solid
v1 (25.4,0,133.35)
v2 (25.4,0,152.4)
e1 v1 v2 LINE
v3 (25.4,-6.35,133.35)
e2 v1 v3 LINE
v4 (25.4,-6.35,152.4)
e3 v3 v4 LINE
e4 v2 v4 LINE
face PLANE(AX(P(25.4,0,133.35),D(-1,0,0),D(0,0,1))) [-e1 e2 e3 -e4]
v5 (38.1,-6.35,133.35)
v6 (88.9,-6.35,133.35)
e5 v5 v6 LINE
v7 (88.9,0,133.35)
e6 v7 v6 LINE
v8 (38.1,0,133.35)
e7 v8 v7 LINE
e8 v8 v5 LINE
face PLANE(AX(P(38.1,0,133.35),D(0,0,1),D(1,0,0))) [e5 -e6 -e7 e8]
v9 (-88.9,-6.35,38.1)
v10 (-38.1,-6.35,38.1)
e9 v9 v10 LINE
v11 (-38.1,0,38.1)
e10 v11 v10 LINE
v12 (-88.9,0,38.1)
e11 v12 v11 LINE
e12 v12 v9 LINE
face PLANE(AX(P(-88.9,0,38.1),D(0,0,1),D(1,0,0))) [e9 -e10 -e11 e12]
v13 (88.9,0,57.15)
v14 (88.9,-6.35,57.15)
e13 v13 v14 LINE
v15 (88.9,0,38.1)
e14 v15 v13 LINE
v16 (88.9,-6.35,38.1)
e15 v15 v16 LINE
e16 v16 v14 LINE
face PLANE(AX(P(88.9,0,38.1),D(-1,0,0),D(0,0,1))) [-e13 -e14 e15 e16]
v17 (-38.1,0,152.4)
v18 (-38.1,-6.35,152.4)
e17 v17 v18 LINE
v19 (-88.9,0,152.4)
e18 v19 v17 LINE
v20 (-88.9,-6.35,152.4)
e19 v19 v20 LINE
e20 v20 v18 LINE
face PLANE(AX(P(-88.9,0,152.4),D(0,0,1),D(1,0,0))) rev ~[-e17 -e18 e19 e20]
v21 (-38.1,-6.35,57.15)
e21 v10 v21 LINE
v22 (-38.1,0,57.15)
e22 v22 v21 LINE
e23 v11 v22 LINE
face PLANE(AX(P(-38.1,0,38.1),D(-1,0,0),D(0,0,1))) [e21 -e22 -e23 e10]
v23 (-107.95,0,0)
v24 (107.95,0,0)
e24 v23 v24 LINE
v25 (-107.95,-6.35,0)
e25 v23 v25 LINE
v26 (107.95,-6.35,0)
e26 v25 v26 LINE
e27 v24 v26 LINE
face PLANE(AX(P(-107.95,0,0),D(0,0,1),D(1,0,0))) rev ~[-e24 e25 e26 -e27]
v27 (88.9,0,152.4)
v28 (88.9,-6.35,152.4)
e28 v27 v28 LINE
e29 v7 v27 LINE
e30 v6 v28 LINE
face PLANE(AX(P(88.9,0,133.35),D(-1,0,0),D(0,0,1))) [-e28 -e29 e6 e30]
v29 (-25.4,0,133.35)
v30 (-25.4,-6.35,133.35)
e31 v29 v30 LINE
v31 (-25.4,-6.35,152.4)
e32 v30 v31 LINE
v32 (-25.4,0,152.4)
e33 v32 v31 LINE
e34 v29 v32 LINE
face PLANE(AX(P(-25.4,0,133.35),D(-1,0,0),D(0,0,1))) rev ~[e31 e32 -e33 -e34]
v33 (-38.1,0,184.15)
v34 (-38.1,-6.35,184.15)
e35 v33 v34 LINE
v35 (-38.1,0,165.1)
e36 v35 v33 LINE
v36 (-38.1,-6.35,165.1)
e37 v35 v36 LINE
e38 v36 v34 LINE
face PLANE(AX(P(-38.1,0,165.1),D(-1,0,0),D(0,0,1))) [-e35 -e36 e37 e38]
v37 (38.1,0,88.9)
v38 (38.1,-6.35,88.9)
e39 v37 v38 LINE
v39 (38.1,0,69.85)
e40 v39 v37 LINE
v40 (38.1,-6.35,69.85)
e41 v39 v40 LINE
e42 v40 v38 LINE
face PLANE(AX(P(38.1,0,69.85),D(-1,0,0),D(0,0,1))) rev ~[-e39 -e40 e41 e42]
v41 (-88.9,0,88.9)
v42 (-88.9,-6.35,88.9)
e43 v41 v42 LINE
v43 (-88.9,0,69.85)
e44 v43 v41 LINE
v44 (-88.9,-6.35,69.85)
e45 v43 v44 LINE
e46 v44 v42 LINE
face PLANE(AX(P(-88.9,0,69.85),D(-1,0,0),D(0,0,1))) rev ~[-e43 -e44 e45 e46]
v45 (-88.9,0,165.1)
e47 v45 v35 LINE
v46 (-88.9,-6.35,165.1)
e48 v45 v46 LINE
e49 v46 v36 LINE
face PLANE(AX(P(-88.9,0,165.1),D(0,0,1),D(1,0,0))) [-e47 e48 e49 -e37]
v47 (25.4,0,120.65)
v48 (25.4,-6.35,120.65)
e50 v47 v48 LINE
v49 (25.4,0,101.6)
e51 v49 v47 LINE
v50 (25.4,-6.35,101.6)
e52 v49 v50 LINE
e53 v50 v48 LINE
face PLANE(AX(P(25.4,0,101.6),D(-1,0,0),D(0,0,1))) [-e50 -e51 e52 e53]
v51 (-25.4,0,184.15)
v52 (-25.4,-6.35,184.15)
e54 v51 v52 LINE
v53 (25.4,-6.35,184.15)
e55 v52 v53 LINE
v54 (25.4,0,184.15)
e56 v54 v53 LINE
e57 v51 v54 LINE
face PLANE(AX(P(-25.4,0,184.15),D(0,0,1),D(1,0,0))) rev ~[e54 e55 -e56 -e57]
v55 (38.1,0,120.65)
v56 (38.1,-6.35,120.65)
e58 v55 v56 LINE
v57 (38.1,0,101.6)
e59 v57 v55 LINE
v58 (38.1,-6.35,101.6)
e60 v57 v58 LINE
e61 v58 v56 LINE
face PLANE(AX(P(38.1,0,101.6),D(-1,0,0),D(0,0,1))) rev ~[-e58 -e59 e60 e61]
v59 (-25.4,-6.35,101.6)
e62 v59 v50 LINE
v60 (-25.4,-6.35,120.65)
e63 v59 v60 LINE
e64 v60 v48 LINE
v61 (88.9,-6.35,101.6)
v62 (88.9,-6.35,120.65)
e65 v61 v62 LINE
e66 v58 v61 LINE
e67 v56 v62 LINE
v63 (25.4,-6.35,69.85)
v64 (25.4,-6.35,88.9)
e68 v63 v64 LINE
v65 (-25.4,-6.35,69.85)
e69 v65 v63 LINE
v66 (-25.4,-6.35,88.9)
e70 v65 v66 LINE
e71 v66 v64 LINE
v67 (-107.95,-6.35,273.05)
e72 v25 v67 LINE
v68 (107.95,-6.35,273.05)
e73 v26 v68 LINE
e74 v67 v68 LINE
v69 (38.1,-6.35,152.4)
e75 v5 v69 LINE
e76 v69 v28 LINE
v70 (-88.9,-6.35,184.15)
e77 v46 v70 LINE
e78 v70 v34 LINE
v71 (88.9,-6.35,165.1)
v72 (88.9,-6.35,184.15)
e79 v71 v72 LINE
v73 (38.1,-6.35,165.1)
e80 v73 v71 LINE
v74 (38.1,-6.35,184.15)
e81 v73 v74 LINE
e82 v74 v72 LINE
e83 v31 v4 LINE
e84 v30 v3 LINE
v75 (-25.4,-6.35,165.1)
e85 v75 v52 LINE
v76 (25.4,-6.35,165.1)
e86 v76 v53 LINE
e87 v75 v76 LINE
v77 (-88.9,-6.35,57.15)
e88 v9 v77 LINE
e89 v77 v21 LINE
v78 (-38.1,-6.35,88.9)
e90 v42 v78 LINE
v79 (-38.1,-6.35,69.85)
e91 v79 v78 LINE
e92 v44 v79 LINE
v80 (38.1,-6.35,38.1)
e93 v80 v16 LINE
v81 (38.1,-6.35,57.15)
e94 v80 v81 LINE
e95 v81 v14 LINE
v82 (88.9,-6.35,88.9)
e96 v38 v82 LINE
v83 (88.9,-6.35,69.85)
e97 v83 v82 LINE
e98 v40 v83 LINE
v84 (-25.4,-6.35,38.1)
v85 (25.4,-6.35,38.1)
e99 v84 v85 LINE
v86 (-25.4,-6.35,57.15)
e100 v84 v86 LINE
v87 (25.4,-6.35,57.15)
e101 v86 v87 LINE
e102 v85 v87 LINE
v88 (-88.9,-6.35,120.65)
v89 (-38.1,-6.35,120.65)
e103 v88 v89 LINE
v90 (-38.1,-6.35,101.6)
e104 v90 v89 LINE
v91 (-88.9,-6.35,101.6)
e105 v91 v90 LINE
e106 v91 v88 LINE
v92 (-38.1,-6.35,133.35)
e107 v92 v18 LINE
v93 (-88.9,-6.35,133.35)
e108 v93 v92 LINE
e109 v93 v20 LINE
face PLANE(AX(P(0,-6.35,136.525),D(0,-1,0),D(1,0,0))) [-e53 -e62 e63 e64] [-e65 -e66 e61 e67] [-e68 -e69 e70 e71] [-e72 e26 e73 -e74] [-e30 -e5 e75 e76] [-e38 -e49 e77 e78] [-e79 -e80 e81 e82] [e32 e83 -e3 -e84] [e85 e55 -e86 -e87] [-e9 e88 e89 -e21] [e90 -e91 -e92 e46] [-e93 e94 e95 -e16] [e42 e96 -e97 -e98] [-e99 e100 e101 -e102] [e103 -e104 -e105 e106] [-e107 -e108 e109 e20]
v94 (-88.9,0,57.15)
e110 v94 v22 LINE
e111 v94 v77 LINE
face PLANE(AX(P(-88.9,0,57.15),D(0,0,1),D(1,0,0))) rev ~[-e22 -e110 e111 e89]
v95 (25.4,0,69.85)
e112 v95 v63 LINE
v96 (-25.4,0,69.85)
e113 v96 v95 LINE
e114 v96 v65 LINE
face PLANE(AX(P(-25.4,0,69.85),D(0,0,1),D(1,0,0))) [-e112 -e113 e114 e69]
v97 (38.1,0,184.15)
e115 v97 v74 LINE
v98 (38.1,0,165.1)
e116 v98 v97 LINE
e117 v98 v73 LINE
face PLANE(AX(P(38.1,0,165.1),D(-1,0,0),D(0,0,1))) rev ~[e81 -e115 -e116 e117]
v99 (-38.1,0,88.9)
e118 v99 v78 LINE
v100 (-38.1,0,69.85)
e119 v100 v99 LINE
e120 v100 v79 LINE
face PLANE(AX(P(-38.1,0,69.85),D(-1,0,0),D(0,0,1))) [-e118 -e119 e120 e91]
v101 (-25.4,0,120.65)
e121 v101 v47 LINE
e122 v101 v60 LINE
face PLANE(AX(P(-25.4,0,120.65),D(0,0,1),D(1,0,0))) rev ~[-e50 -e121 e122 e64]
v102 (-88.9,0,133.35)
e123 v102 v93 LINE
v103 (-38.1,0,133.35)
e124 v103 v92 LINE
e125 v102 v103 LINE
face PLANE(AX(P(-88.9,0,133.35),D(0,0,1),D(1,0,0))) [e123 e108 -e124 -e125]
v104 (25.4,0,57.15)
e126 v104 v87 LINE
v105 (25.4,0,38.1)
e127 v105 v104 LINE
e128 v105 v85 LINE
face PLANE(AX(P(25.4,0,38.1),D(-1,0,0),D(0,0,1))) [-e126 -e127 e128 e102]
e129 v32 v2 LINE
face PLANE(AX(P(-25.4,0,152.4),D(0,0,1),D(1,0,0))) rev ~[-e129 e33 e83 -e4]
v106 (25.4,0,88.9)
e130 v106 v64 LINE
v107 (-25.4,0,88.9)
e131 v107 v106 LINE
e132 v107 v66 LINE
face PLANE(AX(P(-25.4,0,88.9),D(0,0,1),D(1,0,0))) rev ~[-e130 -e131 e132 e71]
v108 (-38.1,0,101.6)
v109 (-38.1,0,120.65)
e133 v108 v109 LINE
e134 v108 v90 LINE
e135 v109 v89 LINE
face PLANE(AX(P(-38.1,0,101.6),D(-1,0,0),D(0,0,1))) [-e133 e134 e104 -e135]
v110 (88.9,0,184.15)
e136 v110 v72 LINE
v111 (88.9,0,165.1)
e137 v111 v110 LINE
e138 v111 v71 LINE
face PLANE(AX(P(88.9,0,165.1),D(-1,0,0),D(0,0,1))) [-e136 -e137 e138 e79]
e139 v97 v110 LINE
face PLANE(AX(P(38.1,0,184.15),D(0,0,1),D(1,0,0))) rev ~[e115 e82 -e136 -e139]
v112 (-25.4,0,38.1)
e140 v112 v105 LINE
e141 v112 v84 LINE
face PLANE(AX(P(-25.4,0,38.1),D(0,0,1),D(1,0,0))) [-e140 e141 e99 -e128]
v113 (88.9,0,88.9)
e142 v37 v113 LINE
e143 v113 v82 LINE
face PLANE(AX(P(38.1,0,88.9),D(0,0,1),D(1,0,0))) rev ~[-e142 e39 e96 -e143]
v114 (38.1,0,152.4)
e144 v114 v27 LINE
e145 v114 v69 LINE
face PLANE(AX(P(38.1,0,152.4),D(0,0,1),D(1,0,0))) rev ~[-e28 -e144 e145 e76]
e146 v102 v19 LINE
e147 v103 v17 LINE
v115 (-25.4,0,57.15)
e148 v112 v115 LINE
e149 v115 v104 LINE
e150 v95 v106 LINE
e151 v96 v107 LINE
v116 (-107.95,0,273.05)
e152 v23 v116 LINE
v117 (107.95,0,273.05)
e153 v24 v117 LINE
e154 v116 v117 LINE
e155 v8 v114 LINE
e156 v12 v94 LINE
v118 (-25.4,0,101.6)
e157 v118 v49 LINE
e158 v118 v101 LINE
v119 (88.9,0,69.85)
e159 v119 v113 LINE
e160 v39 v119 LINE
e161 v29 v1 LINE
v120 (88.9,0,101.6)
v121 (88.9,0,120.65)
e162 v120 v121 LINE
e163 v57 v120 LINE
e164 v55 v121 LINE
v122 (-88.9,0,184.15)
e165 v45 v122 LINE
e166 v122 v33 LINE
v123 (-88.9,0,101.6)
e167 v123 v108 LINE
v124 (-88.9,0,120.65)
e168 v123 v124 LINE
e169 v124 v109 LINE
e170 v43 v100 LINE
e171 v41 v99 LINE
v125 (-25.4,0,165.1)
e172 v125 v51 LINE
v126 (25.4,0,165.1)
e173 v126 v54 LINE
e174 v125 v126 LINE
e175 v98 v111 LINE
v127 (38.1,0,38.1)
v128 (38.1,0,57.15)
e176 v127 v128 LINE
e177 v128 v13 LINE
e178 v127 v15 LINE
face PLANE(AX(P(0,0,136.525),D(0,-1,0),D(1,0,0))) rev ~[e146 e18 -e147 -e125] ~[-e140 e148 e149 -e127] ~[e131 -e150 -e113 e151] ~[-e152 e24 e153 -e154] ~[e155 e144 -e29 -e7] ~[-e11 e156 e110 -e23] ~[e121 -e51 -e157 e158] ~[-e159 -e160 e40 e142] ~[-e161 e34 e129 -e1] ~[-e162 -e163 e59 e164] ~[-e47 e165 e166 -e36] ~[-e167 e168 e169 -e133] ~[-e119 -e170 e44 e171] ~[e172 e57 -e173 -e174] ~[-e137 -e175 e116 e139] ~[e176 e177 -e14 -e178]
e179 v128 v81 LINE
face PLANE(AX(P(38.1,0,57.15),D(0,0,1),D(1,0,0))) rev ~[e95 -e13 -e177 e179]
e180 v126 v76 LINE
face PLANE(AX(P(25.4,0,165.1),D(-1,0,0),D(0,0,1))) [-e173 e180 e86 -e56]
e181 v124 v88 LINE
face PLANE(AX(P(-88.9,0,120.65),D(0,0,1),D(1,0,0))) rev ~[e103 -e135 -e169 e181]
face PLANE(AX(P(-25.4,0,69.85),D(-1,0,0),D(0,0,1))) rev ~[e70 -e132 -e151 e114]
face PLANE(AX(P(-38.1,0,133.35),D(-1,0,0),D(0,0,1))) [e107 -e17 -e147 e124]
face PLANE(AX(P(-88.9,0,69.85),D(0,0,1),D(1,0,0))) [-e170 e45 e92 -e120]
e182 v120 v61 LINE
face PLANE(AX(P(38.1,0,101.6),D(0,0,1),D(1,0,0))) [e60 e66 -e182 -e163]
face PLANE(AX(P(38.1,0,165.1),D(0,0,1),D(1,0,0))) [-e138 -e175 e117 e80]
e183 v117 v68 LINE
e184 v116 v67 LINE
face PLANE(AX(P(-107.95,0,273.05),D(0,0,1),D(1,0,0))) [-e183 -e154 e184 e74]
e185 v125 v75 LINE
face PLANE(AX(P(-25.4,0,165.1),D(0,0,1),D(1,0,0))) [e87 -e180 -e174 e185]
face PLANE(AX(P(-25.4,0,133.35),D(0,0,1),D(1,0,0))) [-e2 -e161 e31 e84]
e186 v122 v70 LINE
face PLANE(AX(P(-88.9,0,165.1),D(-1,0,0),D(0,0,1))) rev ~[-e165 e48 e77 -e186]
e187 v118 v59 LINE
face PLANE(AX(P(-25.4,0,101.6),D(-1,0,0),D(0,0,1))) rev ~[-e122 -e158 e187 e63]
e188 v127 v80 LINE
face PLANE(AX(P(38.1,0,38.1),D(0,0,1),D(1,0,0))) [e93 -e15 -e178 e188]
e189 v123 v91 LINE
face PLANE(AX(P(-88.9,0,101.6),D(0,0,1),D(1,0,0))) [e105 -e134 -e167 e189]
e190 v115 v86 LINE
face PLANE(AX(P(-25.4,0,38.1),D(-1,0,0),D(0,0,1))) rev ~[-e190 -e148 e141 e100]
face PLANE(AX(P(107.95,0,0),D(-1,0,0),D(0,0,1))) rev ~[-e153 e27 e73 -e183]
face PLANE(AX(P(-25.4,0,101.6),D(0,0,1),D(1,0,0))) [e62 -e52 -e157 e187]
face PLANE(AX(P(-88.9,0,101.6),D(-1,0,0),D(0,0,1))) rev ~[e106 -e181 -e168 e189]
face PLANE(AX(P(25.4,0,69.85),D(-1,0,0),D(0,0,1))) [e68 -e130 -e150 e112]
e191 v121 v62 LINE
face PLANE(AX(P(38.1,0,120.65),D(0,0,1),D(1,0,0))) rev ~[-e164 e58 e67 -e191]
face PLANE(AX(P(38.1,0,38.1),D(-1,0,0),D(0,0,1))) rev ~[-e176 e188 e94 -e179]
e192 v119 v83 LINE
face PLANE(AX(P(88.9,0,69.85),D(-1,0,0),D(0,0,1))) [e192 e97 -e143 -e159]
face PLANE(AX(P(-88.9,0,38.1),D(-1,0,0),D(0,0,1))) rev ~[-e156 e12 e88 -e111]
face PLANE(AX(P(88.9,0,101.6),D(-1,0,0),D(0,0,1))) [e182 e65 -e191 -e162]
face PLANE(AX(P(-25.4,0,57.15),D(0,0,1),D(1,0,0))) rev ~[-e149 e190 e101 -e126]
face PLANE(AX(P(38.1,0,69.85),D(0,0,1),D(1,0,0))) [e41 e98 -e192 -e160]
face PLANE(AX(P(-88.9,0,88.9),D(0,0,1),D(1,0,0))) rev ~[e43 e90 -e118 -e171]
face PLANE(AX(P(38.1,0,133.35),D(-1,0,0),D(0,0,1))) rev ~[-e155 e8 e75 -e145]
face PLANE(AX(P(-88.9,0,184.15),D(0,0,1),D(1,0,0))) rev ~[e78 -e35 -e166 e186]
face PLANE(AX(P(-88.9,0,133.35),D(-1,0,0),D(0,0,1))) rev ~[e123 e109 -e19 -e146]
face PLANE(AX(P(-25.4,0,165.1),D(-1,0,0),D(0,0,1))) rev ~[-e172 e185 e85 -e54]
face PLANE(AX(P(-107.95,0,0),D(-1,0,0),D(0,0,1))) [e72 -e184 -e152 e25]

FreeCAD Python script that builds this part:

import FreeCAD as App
import Part
import Sketcher
Q = App.Units.Quantity


def add_polygon(sketch, points):
    """Adds a closed chain of lines whose ends are joined by coincident constraints."""
    first, n = sketch.GeometryCount, len(points)
    for a, b in zip(points, points[1:] + points[:1]):
        sketch.addGeometry(Part.LineSegment(App.Vector(*a, 0), App.Vector(*b, 0)), False)
    for i in range(n):
        sketch.addConstraint(Sketcher.Constraint("Coincident", first + i, 2, first + (i + 1) % n, 1))

doc = App.newDocument("Part")
body = doc.addObject("PartDesign::Body", "Body")

# Sketch on XZ plane
sketch1 = doc.addObject("Sketcher::SketchObject", "Sketch")
body.addObject(sketch1)
sketch1.AttachmentSupport = (doc.XZ_Plane, [""])
sketch1.MapMode = "FlatFace"
add_polygon(sketch1, [(-107.95, 273.05), (-107.95, 0), (107.95, 0), (107.95, 273.05)])  # lines 0-3
add_polygon(sketch1, [(-38.1, 38.1), (-88.9, 38.1), (-88.9, 57.15), (-38.1, 57.15)])  # lines 4-7
add_polygon(sketch1, [(-38.1, 69.85), (-88.9, 69.85), (-88.9, 88.9), (-38.1, 88.9)])  # lines 8-11
add_polygon(sketch1, [(25.4, 38.1), (-25.4, 38.1), (-25.4, 57.15), (25.4, 57.15)])  # lines 12-15
add_polygon(sketch1, [(88.9, 38.1), (38.1, 38.1), (38.1, 57.15), (88.9, 57.15)])  # lines 16-19
add_polygon(sketch1, [(25.4, 69.85), (-25.4, 69.85), (-25.4, 88.9), (25.4, 88.9)])  # lines 20-23
add_polygon(sketch1, [(88.9, 69.85), (38.1, 69.85), (38.1, 88.9), (88.9, 88.9)])  # lines 24-27
add_polygon(sketch1, [(-38.1, 101.6), (-88.9, 101.6), (-88.9, 120.65), (-38.1, 120.65)])  # lines 28-31
add_polygon(sketch1, [(-38.1, 133.35), (-88.9, 133.35), (-88.9, 152.4), (-38.1, 152.4)])  # lines 32-35
add_polygon(sketch1, [(-38.1, 165.1), (-88.9, 165.1), (-88.9, 184.15), (-38.1, 184.15)])  # lines 36-39
add_polygon(sketch1, [(25.4, 101.6), (-25.4, 101.6), (-25.4, 120.65), (25.4, 120.65)])  # lines 40-43
add_polygon(sketch1, [(25.4, 133.35), (-25.4, 133.35), (-25.4, 152.4), (25.4, 152.4)])  # lines 44-47
add_polygon(sketch1, [(88.9, 101.6), (38.1, 101.6), (38.1, 120.65), (88.9, 120.65)])  # lines 48-51
add_polygon(sketch1, [(88.9, 133.35), (38.1, 133.35), (38.1, 152.4), (88.9, 152.4)])  # lines 52-55
add_polygon(sketch1, [(25.4, 165.1), (-25.4, 165.1), (-25.4, 184.15), (25.4, 184.15)])  # lines 56-59
add_polygon(sketch1, [(88.9, 165.1), (38.1, 165.1), (38.1, 184.15), (88.9, 184.15)])  # lines 60-63
sketch1.addConstraint([
    Sketcher.Constraint("Vertical", 0),
    Sketcher.Constraint("Horizontal", 1),
    Sketcher.Constraint("Vertical", 2),
    Sketcher.Constraint("Horizontal", 3),
    Sketcher.Constraint("Horizontal", 4),
    Sketcher.Constraint("Vertical", 5),
    Sketcher.Constraint("Horizontal", 6),
    Sketcher.Constraint("Vertical", 7),
    Sketcher.Constraint("Horizontal", 8),
    Sketcher.Constraint("Vertical", 9),
    Sketcher.Constraint("Horizontal", 10),
    Sketcher.Constraint("Vertical", 11),
    Sketcher.Constraint("Horizontal", 12),
    Sketcher.Constraint("Vertical", 13),
    Sketcher.Constraint("Horizontal", 14),
    Sketcher.Constraint("Vertical", 15),
    Sketcher.Constraint("Horizontal", 16),
    Sketcher.Constraint("Vertical", 17),
    Sketcher.Constraint("Horizontal", 18),
    Sketcher.Constraint("Vertical", 19),
    Sketcher.Constraint("Horizontal", 20),
    Sketcher.Constraint("Vertical", 21),
    Sketcher.Constraint("Horizontal", 22),
    Sketcher.Constraint("Vertical", 23),
    Sketcher.Constraint("Horizontal", 24),
    Sketcher.Constraint("Vertical", 25),
    Sketcher.Constraint("Horizontal", 26),
    Sketcher.Constraint("Vertical", 27),
    Sketcher.Constraint("Horizontal", 28),
    Sketcher.Constraint("Vertical", 29),
    Sketcher.Constraint("Horizontal", 30),
    Sketcher.Constraint("Vertical", 31),
    Sketcher.Constraint("Horizontal", 32),
    Sketcher.Constraint("Vertical", 33),
    Sketcher.Constraint("Horizontal", 34),
    Sketcher.Constraint("Vertical", 35),
    Sketcher.Constraint("Horizontal", 36),
    Sketcher.Constraint("Vertical", 37),
    Sketcher.Constraint("Horizontal", 38),
    Sketcher.Constraint("Vertical", 39),
    Sketcher.Constraint("Horizontal", 40),
    Sketcher.Constraint("Vertical", 41),
    Sketcher.Constraint("Horizontal", 42),
    Sketcher.Constraint("Vertical", 43),
    Sketcher.Constraint("Horizontal", 44),
    Sketcher.Constraint("Vertical", 45),
    Sketcher.Constraint("Horizontal", 46),
    Sketcher.Constraint("Vertical", 47),
    Sketcher.Constraint("Horizontal", 48),
    Sketcher.Constraint("Vertical", 49),
    Sketcher.Constraint("Horizontal", 50),
    Sketcher.Constraint("Vertical", 51),
    Sketcher.Constraint("Horizontal", 52),
    Sketcher.Constraint("Vertical", 53),
    Sketcher.Constraint("Horizontal", 54),
    Sketcher.Constraint("Vertical", 55),
    Sketcher.Constraint("Horizontal", 56),
    Sketcher.Constraint("Vertical", 57),
    Sketcher.Constraint("Horizontal", 58),
    Sketcher.Constraint("Vertical", 59),
    Sketcher.Constraint("Horizontal", 60),
    Sketcher.Constraint("Vertical", 61),
    Sketcher.Constraint("Horizontal", 62),
    Sketcher.Constraint("Vertical", 63),
    Sketcher.Constraint("Symmetric", 0, 2, 1, 2, -1, 1),
    Sketcher.Constraint("Symmetric", 7, 2, 16, 2, -2),
    Sketcher.Constraint("Symmetric", 5, 2, 18, 2, -2),
    Sketcher.Constraint("Symmetric", 11, 2, 24, 2, -2),
    Sketcher.Constraint("Symmetric", 9, 2, 26, 2, -2),
    Sketcher.Constraint("Symmetric", 31, 2, 48, 2, -2),
    Sketcher.Constraint("Symmetric", 29, 2, 50, 2, -2),
    Sketcher.Constraint("Symmetric", 35, 2, 52, 2, -2),
    Sketcher.Constraint("Symmetric", 33, 2, 54, 2, -2),
    Sketcher.Constraint("Symmetric", 39, 2, 60, 2, -2),
    Sketcher.Constraint("Symmetric", 37, 2, 62, 2, -2),
    Sketcher.Constraint("Horizontal", 7, 2, 12, 2),
    Sketcher.Constraint("Horizontal", 6, 2, 13, 2),
    Sketcher.Constraint("Horizontal", 11, 2, 20, 2),
    Sketcher.Constraint("Horizontal", 10, 2, 21, 2),
    Sketcher.Constraint("Horizontal", 31, 2, 40, 2),
    Sketcher.Constraint("Horizontal", 30, 2, 41, 2),
    Sketcher.Constraint("Horizontal", 35, 2, 44, 2),
    Sketcher.Constraint("Horizontal", 34, 2, 45, 2),
    Sketcher.Constraint("Horizontal", 39, 2, 56, 2),
    Sketcher.Constraint("Horizontal", 38, 2, 57, 2),
    Sketcher.Constraint("Vertical", 5, 2, 8, 2),
    Sketcher.Constraint("Vertical", 7, 2, 10, 2),
    Sketcher.Constraint("Vertical", 13, 2, 20, 2),
    Sketcher.Constraint("Vertical", 15, 2, 22, 2),
    Sketcher.Constraint("Vertical", 9, 2, 28, 2),
    Sketcher.Constraint("Vertical", 11, 2, 30, 2),
    Sketcher.Constraint("Vertical", 29, 2, 32, 2),
    Sketcher.Constraint("Vertical", 31, 2, 34, 2),
    Sketcher.Constraint("Vertical", 33, 2, 36, 2),
    Sketcher.Constraint("Vertical", 35, 2, 38, 2),
    Sketcher.Constraint("Vertical", 21, 2, 40, 2),
    Sketcher.Constraint("Vertical", 23, 2, 42, 2),
    Sketcher.Constraint("Vertical", 41, 2, 44, 2),
    Sketcher.Constraint("Vertical", 43, 2, 46, 2),
    Sketcher.Constraint("Vertical", 45, 2, 56, 2),
    Sketcher.Constraint("Vertical", 47, 2, 58, 2),
    Sketcher.Constraint("Equal", 10, 12),
    Sketcher.Constraint("Equal", 7, 9),
    Sketcher.Constraint("Equal", 27, 29),
    Sketcher.Constraint("Equal", 31, 33),
    Sketcher.Constraint("Equal", 35, 37),
    Sketcher.Constraint("DistanceX", 4, 2, 4, 1, Q("2 in")),
    Sketcher.Constraint("DistanceX", 1, 1, 1, 2, Q("8.5 in")),
    Sketcher.Constraint("DistanceX", 12, 2, -1, 1, Q("1 in")),
    Sketcher.Constraint("DistanceY", -1, 1, 28, 2, Q("4 in")),
    Sketcher.Constraint("DistanceY", -1, 1, 33, 2, Q("6 in")),
    Sketcher.Constraint("DistanceY", 0, 2, 0, 1, Q("10.75 in")),
    Sketcher.Constraint("DistanceY", 5, 1, 5, 2, Q("0.75 in")),
    Sketcher.Constraint("DistanceX", 4, 2, -1, 1, Q("3.5 in")),
    Sketcher.Constraint("DistanceY", -1, 1, 4, 2, Q("1.5 in")),
    Sketcher.Constraint("DistanceY", -1, 1, 9, 2, Q("3.5 in")),
    Sketcher.Constraint("DistanceY", -1, 1, 36, 2, Q("6.5 in")),
])
pad1 = doc.addObject("PartDesign::Pad", "Pad")
body.addObject(pad1)
pad1.Profile = sketch1
pad1.Length = Q("0.25 in")

doc.recompute()
